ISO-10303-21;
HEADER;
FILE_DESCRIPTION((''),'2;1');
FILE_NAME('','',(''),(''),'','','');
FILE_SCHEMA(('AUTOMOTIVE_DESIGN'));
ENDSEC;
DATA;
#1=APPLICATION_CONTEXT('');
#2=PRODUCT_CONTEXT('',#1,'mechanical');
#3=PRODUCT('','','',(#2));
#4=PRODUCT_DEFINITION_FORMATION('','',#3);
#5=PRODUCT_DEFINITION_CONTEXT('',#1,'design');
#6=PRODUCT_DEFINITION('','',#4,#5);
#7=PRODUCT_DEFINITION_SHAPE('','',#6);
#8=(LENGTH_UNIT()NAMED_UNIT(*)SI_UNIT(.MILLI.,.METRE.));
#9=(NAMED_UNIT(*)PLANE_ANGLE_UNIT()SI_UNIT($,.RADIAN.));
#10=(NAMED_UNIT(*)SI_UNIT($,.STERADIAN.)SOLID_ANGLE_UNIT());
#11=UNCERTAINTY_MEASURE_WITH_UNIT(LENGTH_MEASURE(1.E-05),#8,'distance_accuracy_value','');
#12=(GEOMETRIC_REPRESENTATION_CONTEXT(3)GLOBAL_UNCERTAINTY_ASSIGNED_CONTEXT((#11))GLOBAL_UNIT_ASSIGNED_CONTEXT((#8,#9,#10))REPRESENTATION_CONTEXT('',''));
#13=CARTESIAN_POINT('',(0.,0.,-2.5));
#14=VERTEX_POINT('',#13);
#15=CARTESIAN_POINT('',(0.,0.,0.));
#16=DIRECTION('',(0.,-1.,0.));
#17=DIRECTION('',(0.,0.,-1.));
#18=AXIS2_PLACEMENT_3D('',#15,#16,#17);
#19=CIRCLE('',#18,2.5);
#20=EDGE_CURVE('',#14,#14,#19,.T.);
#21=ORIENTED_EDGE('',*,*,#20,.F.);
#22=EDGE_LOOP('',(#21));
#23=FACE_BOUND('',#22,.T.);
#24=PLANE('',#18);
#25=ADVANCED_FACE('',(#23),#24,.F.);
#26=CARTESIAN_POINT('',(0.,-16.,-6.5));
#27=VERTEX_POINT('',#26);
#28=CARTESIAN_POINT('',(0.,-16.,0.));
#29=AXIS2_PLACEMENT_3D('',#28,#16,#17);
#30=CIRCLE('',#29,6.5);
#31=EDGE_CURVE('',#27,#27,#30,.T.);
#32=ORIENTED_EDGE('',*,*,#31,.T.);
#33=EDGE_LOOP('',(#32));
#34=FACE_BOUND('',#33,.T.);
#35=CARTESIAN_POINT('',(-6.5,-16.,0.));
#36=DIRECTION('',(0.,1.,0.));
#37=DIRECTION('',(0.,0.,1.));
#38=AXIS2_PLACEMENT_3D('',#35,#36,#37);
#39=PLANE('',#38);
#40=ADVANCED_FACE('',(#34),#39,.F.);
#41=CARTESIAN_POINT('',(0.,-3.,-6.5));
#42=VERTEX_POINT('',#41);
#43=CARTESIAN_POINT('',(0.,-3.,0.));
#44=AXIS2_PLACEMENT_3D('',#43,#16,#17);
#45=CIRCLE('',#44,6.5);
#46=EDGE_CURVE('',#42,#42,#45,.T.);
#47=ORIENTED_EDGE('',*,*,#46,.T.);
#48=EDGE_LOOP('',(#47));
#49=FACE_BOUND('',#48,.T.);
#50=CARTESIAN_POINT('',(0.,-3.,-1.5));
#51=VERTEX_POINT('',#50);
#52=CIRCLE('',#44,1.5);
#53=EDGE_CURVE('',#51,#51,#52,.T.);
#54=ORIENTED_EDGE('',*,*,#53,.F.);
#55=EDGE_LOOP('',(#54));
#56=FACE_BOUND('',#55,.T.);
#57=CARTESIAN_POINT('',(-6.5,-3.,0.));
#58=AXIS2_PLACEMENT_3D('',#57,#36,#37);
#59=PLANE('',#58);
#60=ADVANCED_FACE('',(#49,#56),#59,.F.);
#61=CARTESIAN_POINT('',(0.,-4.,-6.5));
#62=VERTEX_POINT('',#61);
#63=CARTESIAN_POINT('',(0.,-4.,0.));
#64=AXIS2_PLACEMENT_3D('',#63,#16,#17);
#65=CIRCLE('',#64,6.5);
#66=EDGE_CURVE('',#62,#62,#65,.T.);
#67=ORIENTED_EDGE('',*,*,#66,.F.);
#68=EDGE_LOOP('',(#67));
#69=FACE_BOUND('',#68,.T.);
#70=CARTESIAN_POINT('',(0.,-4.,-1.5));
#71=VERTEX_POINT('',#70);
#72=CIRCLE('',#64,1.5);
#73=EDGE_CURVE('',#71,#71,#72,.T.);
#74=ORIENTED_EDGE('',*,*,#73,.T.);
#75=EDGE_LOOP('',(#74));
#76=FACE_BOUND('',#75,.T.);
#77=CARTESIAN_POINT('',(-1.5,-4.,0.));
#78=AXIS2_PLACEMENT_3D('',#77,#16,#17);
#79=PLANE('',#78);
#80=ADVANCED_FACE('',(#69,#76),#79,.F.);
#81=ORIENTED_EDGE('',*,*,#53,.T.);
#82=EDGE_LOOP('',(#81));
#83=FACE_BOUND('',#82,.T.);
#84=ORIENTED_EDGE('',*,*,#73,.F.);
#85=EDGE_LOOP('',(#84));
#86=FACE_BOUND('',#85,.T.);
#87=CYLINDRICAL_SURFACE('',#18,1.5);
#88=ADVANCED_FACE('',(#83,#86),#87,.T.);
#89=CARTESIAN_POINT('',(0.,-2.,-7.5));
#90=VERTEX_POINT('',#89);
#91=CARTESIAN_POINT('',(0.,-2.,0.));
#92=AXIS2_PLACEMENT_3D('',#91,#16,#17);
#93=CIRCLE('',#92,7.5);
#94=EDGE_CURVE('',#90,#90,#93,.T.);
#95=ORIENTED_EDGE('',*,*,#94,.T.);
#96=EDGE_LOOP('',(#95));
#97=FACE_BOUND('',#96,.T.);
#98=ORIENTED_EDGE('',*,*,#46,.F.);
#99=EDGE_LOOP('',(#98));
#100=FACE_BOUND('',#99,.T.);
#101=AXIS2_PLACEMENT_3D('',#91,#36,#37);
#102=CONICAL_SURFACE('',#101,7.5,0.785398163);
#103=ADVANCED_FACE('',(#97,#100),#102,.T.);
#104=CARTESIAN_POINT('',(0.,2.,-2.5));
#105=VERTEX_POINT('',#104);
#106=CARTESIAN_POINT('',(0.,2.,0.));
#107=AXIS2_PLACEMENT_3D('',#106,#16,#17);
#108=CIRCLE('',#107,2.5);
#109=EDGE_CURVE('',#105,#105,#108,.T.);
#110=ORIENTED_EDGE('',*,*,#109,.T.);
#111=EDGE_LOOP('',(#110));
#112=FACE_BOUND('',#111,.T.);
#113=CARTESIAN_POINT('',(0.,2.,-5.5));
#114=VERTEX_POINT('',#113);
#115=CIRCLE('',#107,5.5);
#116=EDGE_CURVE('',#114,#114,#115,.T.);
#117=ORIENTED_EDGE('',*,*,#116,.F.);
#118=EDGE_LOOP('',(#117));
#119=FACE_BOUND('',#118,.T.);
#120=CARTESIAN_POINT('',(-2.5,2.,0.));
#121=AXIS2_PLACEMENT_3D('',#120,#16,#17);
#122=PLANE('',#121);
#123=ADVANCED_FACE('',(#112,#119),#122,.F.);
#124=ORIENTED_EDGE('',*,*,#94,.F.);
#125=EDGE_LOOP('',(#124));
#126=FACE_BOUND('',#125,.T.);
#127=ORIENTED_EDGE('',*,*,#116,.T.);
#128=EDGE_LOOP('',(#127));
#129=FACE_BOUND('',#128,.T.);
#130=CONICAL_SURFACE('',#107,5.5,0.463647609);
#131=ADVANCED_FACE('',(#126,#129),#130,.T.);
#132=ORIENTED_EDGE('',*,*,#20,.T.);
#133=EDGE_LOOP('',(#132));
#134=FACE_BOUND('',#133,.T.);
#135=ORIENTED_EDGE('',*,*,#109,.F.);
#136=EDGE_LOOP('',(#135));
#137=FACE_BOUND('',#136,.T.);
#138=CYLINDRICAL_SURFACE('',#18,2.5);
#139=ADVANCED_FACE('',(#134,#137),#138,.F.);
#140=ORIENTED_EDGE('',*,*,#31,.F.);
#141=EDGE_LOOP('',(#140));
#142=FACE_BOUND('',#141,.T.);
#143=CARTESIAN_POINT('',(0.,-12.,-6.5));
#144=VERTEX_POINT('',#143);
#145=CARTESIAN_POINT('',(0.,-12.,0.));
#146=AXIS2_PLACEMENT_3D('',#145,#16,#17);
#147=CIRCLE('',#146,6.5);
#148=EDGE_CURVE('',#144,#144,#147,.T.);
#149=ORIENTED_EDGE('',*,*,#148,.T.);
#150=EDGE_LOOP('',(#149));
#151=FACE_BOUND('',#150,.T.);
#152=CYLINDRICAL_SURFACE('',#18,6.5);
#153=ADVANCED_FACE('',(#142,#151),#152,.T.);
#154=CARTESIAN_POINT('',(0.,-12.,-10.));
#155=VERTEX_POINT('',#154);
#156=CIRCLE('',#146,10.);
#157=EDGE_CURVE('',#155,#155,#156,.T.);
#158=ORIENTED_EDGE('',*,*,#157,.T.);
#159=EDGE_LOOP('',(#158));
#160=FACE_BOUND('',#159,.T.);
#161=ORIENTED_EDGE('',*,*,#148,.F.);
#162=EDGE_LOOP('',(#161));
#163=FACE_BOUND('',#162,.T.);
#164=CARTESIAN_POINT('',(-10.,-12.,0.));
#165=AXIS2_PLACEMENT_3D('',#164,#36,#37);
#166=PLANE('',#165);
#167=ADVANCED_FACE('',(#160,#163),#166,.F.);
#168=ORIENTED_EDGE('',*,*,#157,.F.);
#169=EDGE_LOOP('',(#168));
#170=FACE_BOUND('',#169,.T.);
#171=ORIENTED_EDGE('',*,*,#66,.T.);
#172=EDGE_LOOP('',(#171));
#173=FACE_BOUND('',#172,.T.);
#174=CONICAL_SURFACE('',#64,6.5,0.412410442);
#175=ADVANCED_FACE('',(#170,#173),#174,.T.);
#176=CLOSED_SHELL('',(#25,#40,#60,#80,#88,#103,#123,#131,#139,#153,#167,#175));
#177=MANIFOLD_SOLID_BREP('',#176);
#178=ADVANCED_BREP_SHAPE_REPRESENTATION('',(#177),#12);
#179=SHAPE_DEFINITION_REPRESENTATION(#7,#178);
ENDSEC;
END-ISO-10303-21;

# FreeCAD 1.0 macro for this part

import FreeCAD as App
import Part
import Sketcher
from FreeCAD import Vector
Q = App.Units.Quantity

doc = App.newDocument("Part")
body = doc.addObject("PartDesign::Body", "Body")

sketch1 = body.newObject("Sketcher::SketchObject", "Sketch")
sketch1.AttachmentSupport = (doc.getObject("XY_Plane"), [""])
sketch1.MapMode = "FlatFace"
sketch1.addGeometry([
    Part.LineSegment(Vector(0, 0, 0), Vector(-2.5, 0, 0)),
    Part.LineSegment(Vector(-2.5, 0, 0), Vector(-2.5, 2, 0)),
    Part.LineSegment(Vector(-2.5, 2, 0), Vector(-5.5, 2, 0)),
    Part.LineSegment(Vector(-5.5, 2, 0), Vector(-7.5, -2, 0)),
    Part.LineSegment(Vector(-7.5, -2, 0), Vector(-6.5, -3, 0)),
    Part.LineSegment(Vector(-6.5, -3, 0), Vector(-1.5, -3, 0)),
    Part.LineSegment(Vector(-1.5, -3, 0), Vector(-1.5, -4, 0)),
    Part.LineSegment(Vector(-1.5, -4, 0), Vector(-6.5, -4, 0)),
    Part.LineSegment(Vector(-6.5, -4, 0), Vector(-10, -12, 0)),
    Part.LineSegment(Vector(-10, -12, 0), Vector(-6.5, -12, 0)),
    Part.LineSegment(Vector(-6.5, -12, 0), Vector(-6.5, -16, 0)),
    Part.LineSegment(Vector(-6.5, -16, 0), Vector(0, -16, 0)),
    Part.LineSegment(Vector(0, -16, 0), Vector(0, 0, 0)),
], False)
sketch1.addConstraint([
    Sketcher.Constraint("Coincident", 0, 2, 1, 1),
    Sketcher.Constraint("Coincident", 1, 2, 2, 1),
    Sketcher.Constraint("Coincident", 2, 2, 3, 1),
    Sketcher.Constraint("Coincident", 3, 2, 4, 1),
    Sketcher.Constraint("Coincident", 4, 2, 5, 1),
    Sketcher.Constraint("Coincident", 5, 2, 6, 1),
    Sketcher.Constraint("Coincident", 6, 2, 7, 1),
    Sketcher.Constraint("Coincident", 7, 2, 8, 1),
    Sketcher.Constraint("Coincident", 8, 2, 9, 1),
    Sketcher.Constraint("Coincident", 9, 2, 10, 1),
    Sketcher.Constraint("Coincident", 10, 2, 11, 1),
    Sketcher.Constraint("Coincident", 11, 2, 12, 1),
    Sketcher.Constraint("Coincident", 12, 2, 0, 1),
    Sketcher.Constraint("Horizontal", 0),
    Sketcher.Constraint("Vertical", 1),
    Sketcher.Constraint("Horizontal", 2),
    Sketcher.Constraint("Horizontal", 5),
    Sketcher.Constraint("Vertical", 6),
    Sketcher.Constraint("Horizontal", 7),
    Sketcher.Constraint("Horizontal", 9),
    Sketcher.Constraint("Vertical", 10),
    Sketcher.Constraint("Horizontal", 11),
    Sketcher.Constraint("Vertical", 12),
    Sketcher.Constraint("Coincident", 12, 2, -1, 1),
    Sketcher.Constraint("Vertical", 4, 2, 7, 2),
    Sketcher.Constraint("Vertical", 7, 2, 9, 2),
    Sketcher.Constraint("DistanceX", 2, 2, 2, 1, Q("3 mm")),
    Sketcher.Constraint("DistanceX", 5, 1, 5, 2, Q("5 mm")),
    Sketcher.Constraint("DistanceY", 1, 1, 1, 2, Q("2 mm")),
    Sketcher.Constraint("DistanceY", 6, 2, 6, 1, Q("1 mm")),
    Sketcher.Constraint("DistanceY", 10, 2, 10, 1, Q("4 mm")),
    Sketcher.Constraint("DistanceY", 12, 1, 12, 2, Q("16 mm")),
    Sketcher.Constraint("Angle", 4, Q("-45 deg")),
    Sketcher.Constraint("DistanceX", 0, 2, 0, 1, Q("2.5 mm")),
    Sketcher.Constraint("DistanceX", 9, 1, 9, 2, Q("3.5 mm")),
    Sketcher.Constraint("DistanceX", 11, 1, 11, 2, Q("6.5 mm")),
    Sketcher.Constraint("DistanceY", 3, 2, -1, 1, Q("2 mm")),
    Sketcher.Constraint("DistanceY", 4, 2, -1, 1, Q("3 mm")),
])
revolution = body.newObject("PartDesign::Revolution", "Revolution")
revolution.Profile = sketch1
revolution.ReferenceAxis = (sketch1, ["V_Axis"])
revolution.Angle = 360

doc.recompute()
